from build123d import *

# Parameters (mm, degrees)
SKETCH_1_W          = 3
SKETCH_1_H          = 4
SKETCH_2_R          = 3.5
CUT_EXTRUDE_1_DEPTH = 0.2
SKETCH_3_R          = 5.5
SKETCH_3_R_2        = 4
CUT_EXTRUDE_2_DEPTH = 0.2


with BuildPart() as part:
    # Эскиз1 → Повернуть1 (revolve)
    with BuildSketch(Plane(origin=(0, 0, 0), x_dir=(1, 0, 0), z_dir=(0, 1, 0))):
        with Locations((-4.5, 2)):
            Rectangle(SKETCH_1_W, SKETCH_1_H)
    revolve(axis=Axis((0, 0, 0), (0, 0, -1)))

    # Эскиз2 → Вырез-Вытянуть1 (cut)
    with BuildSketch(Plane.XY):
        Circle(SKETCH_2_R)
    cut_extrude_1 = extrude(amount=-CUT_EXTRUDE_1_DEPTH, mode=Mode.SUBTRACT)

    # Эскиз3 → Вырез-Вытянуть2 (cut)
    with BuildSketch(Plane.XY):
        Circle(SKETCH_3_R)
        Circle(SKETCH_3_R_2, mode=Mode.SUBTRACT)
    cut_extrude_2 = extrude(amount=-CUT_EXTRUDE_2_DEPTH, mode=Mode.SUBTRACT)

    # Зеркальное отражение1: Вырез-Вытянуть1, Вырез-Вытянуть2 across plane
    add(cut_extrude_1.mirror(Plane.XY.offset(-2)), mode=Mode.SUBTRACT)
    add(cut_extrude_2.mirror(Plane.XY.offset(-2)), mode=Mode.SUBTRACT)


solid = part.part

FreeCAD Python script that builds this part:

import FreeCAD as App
import Part
import Sketcher

doc = App.newDocument("Part")
body = doc.addObject("PartDesign::Body", "Body")

# Sketch on XZ plane
sketch1 = doc.addObject("Sketcher::SketchObject", "Sketch")
body.addObject(sketch1)
sketch1.AttachmentSupport = (doc.XZ_Plane, [""])
sketch1.MapMode = "FlatFace"
sketch1.addGeometry([
    Part.LineSegment(App.Vector(-6, -4, 0), App.Vector(-6, 0, 0)),
    Part.LineSegment(App.Vector(-6, 0, 0), App.Vector(-3, 0, 0)),
    Part.LineSegment(App.Vector(-3, 0, 0), App.Vector(-3, -4, 0)),
    Part.LineSegment(App.Vector(-3, -4, 0), App.Vector(-6, -4, 0)),
], False)
sketch1.addConstraint([
    Sketcher.Constraint("Coincident", 0, 2, 1, 1),
    Sketcher.Constraint("Coincident", 1, 2, 2, 1),
    Sketcher.Constraint("Coincident", 2, 2, 3, 1),
    Sketcher.Constraint("Coincident", 3, 2, 0, 1),
    Sketcher.Constraint("Vertical", 0),
    Sketcher.Constraint("Horizontal", 1),
    Sketcher.Constraint("Vertical", 2),
    Sketcher.Constraint("Horizontal", 3),
    Sketcher.Constraint("PointOnObject", 0, 2, -1),
    Sketcher.Constraint("DistanceX", 1, 1, 1, 2, 3.0),
    Sketcher.Constraint("DistanceY", 0, 1, 0, 2, 4.0),
    Sketcher.Constraint("DistanceX", 0, 2, -1, 1, 6.0),
])
revolution = doc.addObject("PartDesign::Revolution", "Revolution")
body.addObject(revolution)
revolution.Profile = sketch1
revolution.ReferenceAxis = (sketch1, ["V_Axis"])
revolution.Angle = 360

# Sketch on XY plane
sketch2 = doc.addObject("Sketcher::SketchObject", "Sketch001")
body.addObject(sketch2)
sketch2.AttachmentSupport = (doc.XY_Plane, [""])
sketch2.MapMode = "FlatFace"
sketch2.addGeometry(Part.Circle(App.Vector(0, 0, 0), App.Vector(0, 0, 1), 3.5), False)
sketch2.addConstraint([
    Sketcher.Constraint("Coincident", 0, 3, -1, 1),
    Sketcher.Constraint("Diameter", 0, 7.0),
])
pocket1 = doc.addObject("PartDesign::Pocket", "Pocket")
body.addObject(pocket1)
pocket1.Profile = sketch2
pocket1.Length = 0.2

# Sketch on XY plane
sketch3 = doc.addObject("Sketcher::SketchObject", "Sketch002")
body.addObject(sketch3)
sketch3.AttachmentSupport = (doc.XY_Plane, [""])
sketch3.MapMode = "FlatFace"
sketch3.addGeometry([
    Part.Circle(App.Vector(0, 0, 0), App.Vector(0, 0, 1), 5.5),
    Part.Circle(App.Vector(0, 0, 0), App.Vector(0, 0, 1), 4),
], False)
sketch3.addConstraint([
    Sketcher.Constraint("Coincident", 0, 3, -1, 1),
    Sketcher.Constraint("Coincident", 1, 3, -1, 1),
    Sketcher.Constraint("Diameter", 0, 11.0),
    Sketcher.Constraint("Diameter", 1, 8.0),
])
pocket2 = doc.addObject("PartDesign::Pocket", "Pocket001")
body.addObject(pocket2)
pocket2.Profile = sketch3
pocket2.Length = 0.2
doc.recompute()

datumplane = doc.addObject("PartDesign::Plane", "DatumPlane")
body.addObject(datumplane)
datumplane.AttachmentSupport = (doc.XY_Plane, [""])
datumplane.MapMode = "FlatFace"
datumplane.AttachmentOffset = App.Placement(App.Vector(0, 0, -2), App.Rotation())
mirrored = doc.addObject("PartDesign::Mirrored", "Mirrored")
body.addObject(mirrored)
mirrored.Originals = [pocket1, pocket2]
mirrored.MirrorPlane = (datumplane, [""])
body.Tip = mirrored

doc.recompute()
